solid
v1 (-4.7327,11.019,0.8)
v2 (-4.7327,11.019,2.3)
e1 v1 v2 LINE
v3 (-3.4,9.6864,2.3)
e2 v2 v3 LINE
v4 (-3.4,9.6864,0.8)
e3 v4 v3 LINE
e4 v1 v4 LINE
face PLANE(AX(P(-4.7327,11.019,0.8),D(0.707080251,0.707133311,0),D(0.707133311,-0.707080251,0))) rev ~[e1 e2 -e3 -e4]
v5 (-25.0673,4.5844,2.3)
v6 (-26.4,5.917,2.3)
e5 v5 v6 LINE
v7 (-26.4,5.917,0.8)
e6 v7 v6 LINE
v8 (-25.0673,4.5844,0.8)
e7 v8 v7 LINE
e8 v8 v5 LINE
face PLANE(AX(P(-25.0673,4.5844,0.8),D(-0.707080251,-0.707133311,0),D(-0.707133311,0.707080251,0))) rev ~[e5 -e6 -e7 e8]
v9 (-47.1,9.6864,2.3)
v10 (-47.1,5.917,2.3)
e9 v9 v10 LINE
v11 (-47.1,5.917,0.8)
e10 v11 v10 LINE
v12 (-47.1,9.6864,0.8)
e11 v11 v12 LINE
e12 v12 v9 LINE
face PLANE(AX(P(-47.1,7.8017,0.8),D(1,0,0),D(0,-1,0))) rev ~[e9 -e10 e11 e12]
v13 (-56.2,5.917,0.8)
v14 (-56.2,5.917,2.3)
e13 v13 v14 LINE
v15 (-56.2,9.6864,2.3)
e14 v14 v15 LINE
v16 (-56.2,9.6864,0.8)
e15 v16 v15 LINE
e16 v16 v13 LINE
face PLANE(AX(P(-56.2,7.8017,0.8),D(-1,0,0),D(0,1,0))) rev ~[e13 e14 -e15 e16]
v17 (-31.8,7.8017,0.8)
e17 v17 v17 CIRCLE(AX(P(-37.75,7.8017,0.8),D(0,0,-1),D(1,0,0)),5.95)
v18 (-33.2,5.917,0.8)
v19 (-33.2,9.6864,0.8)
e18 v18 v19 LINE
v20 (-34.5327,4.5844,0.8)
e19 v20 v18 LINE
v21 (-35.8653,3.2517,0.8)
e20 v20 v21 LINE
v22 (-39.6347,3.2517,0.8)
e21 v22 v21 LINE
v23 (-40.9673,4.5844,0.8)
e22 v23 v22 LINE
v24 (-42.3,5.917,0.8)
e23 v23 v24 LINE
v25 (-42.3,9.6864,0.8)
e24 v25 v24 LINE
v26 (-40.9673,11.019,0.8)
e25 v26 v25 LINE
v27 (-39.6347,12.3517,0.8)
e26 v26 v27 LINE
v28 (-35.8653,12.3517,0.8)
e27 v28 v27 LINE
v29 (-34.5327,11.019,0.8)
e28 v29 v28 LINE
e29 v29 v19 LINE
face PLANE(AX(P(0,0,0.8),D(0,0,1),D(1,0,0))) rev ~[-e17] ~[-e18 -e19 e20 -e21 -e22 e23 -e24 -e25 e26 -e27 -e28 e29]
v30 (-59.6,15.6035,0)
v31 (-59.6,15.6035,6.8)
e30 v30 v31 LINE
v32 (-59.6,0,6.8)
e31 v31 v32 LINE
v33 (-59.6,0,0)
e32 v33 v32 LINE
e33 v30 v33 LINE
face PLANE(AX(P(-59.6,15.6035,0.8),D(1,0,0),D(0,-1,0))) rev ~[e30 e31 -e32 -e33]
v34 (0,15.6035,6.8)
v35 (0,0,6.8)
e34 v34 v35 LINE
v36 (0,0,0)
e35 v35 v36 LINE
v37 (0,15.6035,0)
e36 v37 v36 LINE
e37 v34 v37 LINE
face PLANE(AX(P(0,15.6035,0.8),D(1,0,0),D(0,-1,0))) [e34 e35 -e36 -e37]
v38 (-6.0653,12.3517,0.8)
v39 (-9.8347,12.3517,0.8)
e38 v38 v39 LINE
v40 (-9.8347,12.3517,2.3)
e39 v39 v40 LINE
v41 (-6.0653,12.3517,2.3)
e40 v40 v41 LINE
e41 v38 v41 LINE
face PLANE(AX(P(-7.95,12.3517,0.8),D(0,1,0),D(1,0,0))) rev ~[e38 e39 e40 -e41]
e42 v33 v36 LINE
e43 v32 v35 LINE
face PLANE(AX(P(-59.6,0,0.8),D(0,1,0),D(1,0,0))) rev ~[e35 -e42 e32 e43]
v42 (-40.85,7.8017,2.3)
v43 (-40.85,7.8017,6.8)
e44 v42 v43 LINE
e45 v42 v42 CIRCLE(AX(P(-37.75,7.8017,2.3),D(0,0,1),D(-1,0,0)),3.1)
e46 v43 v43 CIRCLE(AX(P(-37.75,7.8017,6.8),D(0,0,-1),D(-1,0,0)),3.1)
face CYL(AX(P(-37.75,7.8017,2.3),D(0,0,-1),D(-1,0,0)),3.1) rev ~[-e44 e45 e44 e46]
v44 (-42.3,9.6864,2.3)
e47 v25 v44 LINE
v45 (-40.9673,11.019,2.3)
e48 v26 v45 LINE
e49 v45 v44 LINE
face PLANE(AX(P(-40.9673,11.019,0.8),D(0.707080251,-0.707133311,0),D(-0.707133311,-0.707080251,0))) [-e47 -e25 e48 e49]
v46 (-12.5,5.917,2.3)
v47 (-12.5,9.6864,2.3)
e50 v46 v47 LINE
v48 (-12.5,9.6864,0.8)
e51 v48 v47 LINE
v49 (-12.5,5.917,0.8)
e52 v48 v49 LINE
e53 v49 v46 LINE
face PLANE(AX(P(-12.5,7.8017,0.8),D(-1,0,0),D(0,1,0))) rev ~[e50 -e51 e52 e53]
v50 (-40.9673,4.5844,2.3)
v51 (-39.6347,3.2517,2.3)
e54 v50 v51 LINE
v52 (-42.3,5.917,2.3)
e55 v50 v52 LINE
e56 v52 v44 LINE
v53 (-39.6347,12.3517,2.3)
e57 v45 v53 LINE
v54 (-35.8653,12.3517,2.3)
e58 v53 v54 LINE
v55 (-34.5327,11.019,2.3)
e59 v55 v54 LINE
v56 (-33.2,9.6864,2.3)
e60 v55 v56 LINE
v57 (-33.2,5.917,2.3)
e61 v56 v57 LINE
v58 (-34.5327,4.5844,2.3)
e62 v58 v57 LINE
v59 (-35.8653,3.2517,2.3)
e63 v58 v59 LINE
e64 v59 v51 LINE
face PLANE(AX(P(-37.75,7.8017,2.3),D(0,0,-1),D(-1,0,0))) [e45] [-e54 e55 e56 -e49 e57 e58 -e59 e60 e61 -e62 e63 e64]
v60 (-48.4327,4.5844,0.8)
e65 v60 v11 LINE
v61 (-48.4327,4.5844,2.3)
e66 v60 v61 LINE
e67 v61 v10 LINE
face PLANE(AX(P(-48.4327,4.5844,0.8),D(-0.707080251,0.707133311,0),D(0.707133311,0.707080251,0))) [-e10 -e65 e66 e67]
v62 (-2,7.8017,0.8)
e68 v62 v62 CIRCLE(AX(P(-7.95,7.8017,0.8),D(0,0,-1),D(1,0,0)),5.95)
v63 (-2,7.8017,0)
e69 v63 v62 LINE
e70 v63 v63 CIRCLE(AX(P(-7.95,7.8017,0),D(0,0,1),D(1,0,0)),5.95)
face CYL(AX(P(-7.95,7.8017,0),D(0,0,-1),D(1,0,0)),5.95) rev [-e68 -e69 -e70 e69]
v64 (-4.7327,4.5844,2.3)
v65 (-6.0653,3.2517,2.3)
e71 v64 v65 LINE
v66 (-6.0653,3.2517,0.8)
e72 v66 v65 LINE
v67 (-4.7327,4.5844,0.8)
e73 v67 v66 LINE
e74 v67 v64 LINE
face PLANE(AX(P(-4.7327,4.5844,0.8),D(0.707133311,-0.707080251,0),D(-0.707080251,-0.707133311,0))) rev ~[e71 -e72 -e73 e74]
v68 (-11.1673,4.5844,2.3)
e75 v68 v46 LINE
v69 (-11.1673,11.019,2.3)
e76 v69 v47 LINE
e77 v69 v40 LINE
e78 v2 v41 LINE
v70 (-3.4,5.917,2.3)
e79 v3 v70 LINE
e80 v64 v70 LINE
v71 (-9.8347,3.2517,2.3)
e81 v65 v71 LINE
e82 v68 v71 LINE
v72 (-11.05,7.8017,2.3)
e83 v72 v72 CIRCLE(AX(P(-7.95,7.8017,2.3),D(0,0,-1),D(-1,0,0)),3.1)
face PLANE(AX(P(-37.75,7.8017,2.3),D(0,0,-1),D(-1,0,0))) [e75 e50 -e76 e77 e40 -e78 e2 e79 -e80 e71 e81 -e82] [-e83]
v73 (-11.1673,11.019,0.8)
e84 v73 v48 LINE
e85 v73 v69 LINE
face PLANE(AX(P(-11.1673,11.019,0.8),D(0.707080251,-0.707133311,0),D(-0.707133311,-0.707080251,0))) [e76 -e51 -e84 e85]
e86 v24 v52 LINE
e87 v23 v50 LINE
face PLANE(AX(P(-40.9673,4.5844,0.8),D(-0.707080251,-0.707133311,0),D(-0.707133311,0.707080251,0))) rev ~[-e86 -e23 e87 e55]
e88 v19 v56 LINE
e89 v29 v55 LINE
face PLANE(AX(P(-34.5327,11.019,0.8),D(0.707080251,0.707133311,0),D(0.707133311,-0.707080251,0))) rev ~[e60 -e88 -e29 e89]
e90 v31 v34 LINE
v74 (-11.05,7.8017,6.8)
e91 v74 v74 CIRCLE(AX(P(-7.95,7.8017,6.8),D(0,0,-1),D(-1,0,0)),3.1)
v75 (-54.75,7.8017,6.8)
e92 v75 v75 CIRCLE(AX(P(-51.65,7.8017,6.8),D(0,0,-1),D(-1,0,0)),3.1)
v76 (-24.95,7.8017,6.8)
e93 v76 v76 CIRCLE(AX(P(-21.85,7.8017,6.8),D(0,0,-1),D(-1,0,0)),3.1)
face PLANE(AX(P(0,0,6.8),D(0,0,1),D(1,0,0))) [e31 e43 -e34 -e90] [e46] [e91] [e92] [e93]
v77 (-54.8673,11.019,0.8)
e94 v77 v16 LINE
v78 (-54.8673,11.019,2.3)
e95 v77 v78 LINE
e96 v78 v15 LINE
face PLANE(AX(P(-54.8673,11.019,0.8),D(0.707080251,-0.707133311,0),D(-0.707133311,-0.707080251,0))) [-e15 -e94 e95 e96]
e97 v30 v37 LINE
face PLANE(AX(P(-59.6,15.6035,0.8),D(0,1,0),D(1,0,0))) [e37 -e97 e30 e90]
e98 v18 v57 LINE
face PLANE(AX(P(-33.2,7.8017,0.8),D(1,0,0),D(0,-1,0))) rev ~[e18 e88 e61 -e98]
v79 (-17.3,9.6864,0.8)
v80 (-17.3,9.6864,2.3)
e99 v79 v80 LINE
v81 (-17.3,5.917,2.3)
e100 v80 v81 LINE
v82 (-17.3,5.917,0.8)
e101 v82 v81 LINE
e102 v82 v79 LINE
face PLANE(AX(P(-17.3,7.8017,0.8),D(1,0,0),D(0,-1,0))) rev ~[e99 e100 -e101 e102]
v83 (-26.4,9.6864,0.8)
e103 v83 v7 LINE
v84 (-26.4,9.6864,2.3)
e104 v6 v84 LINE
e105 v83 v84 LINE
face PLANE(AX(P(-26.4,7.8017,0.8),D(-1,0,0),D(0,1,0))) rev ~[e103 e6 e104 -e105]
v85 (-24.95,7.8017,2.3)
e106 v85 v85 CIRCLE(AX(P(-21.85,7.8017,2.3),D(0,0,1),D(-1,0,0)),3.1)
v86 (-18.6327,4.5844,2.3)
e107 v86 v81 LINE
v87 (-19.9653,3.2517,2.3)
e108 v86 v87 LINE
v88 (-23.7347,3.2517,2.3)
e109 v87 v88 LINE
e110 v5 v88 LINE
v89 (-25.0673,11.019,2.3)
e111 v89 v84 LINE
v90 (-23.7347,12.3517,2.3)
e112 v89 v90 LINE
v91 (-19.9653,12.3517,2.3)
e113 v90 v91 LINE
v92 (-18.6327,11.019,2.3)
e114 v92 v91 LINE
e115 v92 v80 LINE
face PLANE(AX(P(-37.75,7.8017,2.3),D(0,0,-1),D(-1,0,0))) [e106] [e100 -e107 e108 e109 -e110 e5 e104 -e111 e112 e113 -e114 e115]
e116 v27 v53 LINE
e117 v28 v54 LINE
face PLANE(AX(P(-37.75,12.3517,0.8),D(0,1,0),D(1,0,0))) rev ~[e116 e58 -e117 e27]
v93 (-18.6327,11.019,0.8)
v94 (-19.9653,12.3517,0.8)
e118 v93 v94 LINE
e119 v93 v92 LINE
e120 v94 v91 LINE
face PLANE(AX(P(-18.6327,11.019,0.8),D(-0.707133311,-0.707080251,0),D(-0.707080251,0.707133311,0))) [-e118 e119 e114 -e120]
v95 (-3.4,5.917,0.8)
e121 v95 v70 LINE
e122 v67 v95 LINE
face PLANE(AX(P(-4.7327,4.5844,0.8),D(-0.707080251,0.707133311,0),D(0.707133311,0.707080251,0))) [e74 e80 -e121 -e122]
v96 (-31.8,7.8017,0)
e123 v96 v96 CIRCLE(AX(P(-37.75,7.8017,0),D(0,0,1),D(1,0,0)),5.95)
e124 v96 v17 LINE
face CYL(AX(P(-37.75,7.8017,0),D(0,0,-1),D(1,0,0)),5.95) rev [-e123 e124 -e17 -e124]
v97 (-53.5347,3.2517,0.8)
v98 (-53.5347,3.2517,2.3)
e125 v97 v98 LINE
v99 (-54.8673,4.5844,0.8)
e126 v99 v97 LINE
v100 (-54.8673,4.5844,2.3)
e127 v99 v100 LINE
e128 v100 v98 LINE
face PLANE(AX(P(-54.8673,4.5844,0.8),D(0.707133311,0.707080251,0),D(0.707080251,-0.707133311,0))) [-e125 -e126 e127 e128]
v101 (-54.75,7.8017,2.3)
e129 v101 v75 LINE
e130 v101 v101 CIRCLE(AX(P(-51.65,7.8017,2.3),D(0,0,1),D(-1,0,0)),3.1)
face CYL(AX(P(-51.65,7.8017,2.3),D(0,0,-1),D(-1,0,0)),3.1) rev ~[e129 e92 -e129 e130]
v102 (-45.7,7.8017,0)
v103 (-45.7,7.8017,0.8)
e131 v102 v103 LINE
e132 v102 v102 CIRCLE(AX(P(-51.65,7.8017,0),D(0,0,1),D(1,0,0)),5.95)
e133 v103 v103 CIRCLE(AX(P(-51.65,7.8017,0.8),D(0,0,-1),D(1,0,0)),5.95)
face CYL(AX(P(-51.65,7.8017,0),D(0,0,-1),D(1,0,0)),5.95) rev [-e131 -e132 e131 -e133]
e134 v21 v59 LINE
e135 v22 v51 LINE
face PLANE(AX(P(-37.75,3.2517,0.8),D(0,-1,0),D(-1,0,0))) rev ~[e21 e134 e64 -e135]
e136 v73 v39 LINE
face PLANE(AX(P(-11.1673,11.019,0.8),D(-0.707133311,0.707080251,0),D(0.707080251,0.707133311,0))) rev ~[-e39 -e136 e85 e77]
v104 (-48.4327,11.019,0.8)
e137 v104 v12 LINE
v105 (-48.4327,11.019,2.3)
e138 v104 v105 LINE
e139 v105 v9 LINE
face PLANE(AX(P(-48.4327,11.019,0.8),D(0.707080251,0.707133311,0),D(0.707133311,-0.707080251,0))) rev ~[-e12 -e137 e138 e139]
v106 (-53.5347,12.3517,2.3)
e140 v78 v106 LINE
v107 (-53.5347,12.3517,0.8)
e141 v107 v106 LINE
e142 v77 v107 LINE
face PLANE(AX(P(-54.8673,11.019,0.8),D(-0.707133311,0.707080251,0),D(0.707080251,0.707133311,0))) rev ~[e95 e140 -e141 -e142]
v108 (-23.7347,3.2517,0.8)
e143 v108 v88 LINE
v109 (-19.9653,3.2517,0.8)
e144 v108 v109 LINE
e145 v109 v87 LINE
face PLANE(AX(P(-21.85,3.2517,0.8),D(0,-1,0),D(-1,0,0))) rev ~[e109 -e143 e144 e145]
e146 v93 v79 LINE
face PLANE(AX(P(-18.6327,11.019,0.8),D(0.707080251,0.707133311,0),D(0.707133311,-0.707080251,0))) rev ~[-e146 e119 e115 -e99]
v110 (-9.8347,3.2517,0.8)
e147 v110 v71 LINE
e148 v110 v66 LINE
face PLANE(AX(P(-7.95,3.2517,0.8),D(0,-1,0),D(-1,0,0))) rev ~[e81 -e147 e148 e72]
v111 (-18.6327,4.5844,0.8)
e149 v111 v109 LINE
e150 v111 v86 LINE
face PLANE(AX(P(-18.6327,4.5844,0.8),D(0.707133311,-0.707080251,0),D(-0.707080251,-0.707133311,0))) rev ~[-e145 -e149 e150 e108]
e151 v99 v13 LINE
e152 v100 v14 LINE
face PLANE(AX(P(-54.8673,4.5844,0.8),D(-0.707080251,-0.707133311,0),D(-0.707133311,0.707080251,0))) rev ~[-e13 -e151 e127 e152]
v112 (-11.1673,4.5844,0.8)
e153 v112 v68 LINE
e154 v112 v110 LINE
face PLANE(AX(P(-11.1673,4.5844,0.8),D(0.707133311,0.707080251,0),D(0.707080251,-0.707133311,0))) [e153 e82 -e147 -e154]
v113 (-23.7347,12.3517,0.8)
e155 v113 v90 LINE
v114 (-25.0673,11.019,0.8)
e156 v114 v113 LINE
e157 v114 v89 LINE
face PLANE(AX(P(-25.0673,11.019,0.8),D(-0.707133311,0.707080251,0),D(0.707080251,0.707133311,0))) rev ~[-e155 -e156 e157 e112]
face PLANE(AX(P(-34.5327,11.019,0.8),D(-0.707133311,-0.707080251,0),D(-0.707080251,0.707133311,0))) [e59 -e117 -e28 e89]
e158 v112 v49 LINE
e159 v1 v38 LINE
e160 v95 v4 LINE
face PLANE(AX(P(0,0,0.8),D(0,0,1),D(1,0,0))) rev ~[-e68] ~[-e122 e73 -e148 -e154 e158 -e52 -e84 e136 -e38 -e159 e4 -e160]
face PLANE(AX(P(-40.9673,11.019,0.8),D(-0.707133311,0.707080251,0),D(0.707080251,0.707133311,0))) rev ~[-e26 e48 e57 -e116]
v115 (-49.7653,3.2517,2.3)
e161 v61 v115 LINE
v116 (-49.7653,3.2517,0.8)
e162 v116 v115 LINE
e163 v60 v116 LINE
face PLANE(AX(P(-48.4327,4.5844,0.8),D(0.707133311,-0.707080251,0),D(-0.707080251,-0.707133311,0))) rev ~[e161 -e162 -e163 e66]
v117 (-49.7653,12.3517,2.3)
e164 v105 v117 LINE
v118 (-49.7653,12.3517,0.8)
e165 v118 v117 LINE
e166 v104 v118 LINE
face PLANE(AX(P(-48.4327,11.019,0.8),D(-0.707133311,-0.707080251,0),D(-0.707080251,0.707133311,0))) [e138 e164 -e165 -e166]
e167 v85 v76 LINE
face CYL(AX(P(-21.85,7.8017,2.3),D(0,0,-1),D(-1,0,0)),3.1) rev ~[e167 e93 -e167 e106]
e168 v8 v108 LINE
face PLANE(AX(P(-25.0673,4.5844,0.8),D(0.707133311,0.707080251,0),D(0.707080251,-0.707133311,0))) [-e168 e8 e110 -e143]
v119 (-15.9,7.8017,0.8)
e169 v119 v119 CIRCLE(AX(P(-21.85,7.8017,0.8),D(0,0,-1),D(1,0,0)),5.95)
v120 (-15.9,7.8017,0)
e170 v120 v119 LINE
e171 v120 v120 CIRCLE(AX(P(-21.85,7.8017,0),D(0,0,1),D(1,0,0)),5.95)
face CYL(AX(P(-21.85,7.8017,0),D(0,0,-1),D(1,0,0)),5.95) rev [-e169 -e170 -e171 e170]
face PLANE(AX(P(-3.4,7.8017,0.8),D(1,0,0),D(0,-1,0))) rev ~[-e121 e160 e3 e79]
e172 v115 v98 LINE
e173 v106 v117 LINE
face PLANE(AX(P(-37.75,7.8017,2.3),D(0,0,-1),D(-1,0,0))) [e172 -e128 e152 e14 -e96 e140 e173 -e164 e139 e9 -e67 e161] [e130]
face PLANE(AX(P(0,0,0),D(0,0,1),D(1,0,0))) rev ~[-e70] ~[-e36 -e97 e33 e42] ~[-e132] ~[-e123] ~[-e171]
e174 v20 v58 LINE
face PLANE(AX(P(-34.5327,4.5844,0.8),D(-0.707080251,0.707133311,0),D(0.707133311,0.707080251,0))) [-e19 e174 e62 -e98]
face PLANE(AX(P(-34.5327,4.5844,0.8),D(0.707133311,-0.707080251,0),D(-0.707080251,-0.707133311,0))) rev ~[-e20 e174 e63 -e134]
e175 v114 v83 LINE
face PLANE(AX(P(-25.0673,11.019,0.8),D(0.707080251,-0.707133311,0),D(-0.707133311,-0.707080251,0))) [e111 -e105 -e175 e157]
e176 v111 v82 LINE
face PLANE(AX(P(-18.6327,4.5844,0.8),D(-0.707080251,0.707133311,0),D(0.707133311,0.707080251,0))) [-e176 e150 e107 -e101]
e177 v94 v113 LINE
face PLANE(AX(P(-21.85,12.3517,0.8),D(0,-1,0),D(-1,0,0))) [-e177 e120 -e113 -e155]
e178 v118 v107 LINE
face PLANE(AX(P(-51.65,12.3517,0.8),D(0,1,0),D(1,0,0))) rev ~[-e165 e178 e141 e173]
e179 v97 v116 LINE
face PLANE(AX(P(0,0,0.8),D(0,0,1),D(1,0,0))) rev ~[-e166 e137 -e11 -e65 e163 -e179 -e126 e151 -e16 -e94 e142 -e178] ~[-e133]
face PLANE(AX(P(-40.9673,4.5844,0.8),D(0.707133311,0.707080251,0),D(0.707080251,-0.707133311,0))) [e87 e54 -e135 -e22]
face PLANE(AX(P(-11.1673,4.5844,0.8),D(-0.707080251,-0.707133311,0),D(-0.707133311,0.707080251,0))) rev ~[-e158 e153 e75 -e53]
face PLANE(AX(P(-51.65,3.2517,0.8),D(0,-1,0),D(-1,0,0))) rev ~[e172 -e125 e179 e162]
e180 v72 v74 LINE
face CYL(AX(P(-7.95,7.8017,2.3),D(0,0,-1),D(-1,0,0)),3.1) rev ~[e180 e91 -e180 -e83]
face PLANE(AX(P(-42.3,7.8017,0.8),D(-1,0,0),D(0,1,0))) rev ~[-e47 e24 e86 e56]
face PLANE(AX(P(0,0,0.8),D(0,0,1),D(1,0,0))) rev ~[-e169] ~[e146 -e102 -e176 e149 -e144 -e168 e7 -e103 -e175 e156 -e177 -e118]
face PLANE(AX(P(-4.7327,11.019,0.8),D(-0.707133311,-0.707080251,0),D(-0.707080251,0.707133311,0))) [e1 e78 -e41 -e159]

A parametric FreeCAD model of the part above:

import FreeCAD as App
import Part
import Sketcher
from FreeCAD import Vector
Q = App.Units.Quantity

doc = App.newDocument("Part")
body = doc.addObject("PartDesign::Body", "Body")

sketch1 = body.newObject("Sketcher::SketchObject", "Sketch")
sketch1.AttachmentSupport = (doc.getObject("XY_Plane"), [""])
sketch1.MapMode = "FlatFace"
sketch1.addGeometry(Part.LineSegment(Vector(0, 0, 0), Vector(0, 15.6035, 0)), False)
sketch1.addGeometry(Part.LineSegment(Vector(0, 15.6035, 0), Vector(-59.6, 15.6035, 0)), False)
sketch1.addGeometry(Part.LineSegment(Vector(-59.6, 15.6035, 0), Vector(-59.6, 0, 0)), False)
sketch1.addGeometry(Part.LineSegment(Vector(-59.6, 0, 0), Vector(0, 0, 0)), False)
sketch1.addGeometry(Part.Circle(Vector(-7.95, 7.8017, 0), Vector(0, 0, 1), 5.95), False)
sketch1.addGeometry(Part.Circle(Vector(-21.85, 7.8017, 0), Vector(0, 0, 1), 5.95), False)
sketch1.addGeometry(Part.Circle(Vector(-37.75, 7.8017, 0), Vector(0, 0, 1), 5.95), False)
sketch1.addGeometry(Part.Circle(Vector(-51.65, 7.8017, 0), Vector(0, 0, 1), 5.95), False)
sketch1.addConstraint(Sketcher.Constraint("Coincident", 0, 2, 1, 1))
sketch1.addConstraint(Sketcher.Constraint("Coincident", 1, 2, 2, 1))
sketch1.addConstraint(Sketcher.Constraint("Coincident", 2, 2, 3, 1))
sketch1.addConstraint(Sketcher.Constraint("Coincident", 3, 2, 0, 1))
sketch1.addConstraint(Sketcher.Constraint("Vertical", 0))
sketch1.addConstraint(Sketcher.Constraint("Horizontal", 1))
sketch1.addConstraint(Sketcher.Constraint("Vertical", 2))
sketch1.addConstraint(Sketcher.Constraint("Horizontal", 3))
sketch1.addConstraint(Sketcher.Constraint("Coincident", 3, 2, -1, 1))
sketch1.addConstraint(Sketcher.Constraint("Equal", 4, 5))
sketch1.addConstraint(Sketcher.Constraint("Equal", 5, 6))
sketch1.addConstraint(Sketcher.Constraint("Equal", 6, 7))
sketch1.addConstraint(Sketcher.Constraint("Horizontal", 4, 3, 5, 3))
sketch1.addConstraint(Sketcher.Constraint("Horizontal", 5, 3, 6, 3))
sketch1.addConstraint(Sketcher.Constraint("Horizontal", 6, 3, 7, 3))
sketch1.addConstraint(Sketcher.Constraint("Diameter", 4, Q("11.9 mm")))
sketch1.addConstraint(Sketcher.Constraint("DistanceX", 5, 3, 4, 3, Q("13.9 mm")))
sketch1.addConstraint(Sketcher.Constraint("DistanceX", 7, 3, 6, 3, Q("13.9 mm")))
sketch1.addConstraint(Sketcher.Constraint("DistanceX", 4, 3, -1, 1, Q("7.95 mm")))
sketch1.addConstraint(Sketcher.Constraint("DistanceX", 1, 2, 7, 3, Q("7.95 mm")))
sketch1.addConstraint(Sketcher.Constraint("DistanceX", 1, 2, 1, 1, Q("59.6 mm")))
sketch1.addConstraint(Sketcher.Constraint("DistanceY", 0, 1, 0, 2, Q("15.6035 mm")))
sketch1.addConstraint(Sketcher.Constraint("DistanceY", -1, 1, 4, 3, Q("7.8017 mm")))
pad1 = body.newObject("PartDesign::Pad", "Pad")
pad1.Profile = sketch1
pad1.Length = 0.8

sketch2 = body.newObject("Sketcher::SketchObject", "Sketch001")
sketch2.AttachmentSupport = (doc.getObject("XY_Plane"), [""])
sketch2.MapMode = "FlatFace"
sketch2.AttachmentOffset = App.Placement(Vector(0, 0, 0.8), App.Rotation())
sketch2.addGeometry(Part.LineSegment(Vector(0, 15.6035, 0), Vector(-59.6, 15.6035, 0)), False)
sketch2.addGeometry(Part.LineSegment(Vector(-59.6, 15.6035, 0), Vector(-59.6, 0, 0)), False)
sketch2.addGeometry(Part.LineSegment(Vector(-59.6, 0, 0), Vector(0, 0, 0)), False)
sketch2.addGeometry(Part.LineSegment(Vector(0, 0, 0), Vector(0, 15.6035, 0)), False)
sketch2.addConstraint(Sketcher.Constraint("Coincident", 0, 2, 1, 1))
sketch2.addConstraint(Sketcher.Constraint("Coincident", 1, 2, 2, 1))
sketch2.addConstraint(Sketcher.Constraint("Coincident", 2, 2, 3, 1))
sketch2.addConstraint(Sketcher.Constraint("Coincident", 3, 2, 0, 1))
sketch2.addConstraint(Sketcher.Constraint("Horizontal", 0))
sketch2.addConstraint(Sketcher.Constraint("Vertical", 1))
sketch2.addConstraint(Sketcher.Constraint("Horizontal", 2))
sketch2.addConstraint(Sketcher.Constraint("Vertical", 3))
sketch2.addConstraint(Sketcher.Constraint("Coincident", 2, 2, -1, 1))
sketch2.addConstraint(Sketcher.Constraint("DistanceX", 0, 2, 0, 1, Q("59.6 mm")))
sketch2.addConstraint(Sketcher.Constraint("DistanceY", 1, 2, 1, 1, Q("15.6035 mm")))
pad2 = body.newObject("PartDesign::Pad", "Pad001")
pad2.Profile = sketch2
pad2.Length = 6

sketch3 = body.newObject("Sketcher::SketchObject", "Sketch002")
sketch3.AttachmentSupport = (doc.getObject("XY_Plane"), [""])
sketch3.MapMode = "FlatFace"
sketch3.AttachmentOffset = App.Placement(Vector(0, 0, 0.8), App.Rotation())
sketch3.addGeometry(Part.LineSegment(Vector(-39.6347, 3.2517, 0), Vector(-40.9673, 4.5844, 0)), False)
sketch3.addGeometry(Part.LineSegment(Vector(-40.9673, 4.5844, 0), Vector(-42.3, 5.917, 0)), False)
sketch3.addGeometry(Part.LineSegment(Vector(-42.3, 5.917, 0), Vector(-42.3, 9.6864, 0)), False)
sketch3.addGeometry(Part.LineSegment(Vector(-42.3, 9.6864, 0), Vector(-40.9673, 11.019, 0)), False)
sketch3.addGeometry(Part.LineSegment(Vector(-40.9673, 11.019, 0), Vector(-39.6347, 12.3517, 0)), False)
sketch3.addGeometry(Part.LineSegment(Vector(-39.6347, 12.3517, 0), Vector(-35.8653, 12.3517, 0)), False)
sketch3.addGeometry(Part.LineSegment(Vector(-35.8653, 12.3517, 0), Vector(-34.5327, 11.019, 0)), False)
sketch3.addGeometry(Part.LineSegment(Vector(-34.5327, 11.019, 0), Vector(-33.2, 9.6864, 0)), False)
sketch3.addGeometry(Part.LineSegment(Vector(-33.2, 9.6864, 0), Vector(-33.2, 5.917, 0)), False)
sketch3.addGeometry(Part.LineSegment(Vector(-33.2, 5.917, 0), Vector(-34.5327, 4.5844, 0)), False)
sketch3.addGeometry(Part.LineSegment(Vector(-34.5327, 4.5844, 0), Vector(-35.8653, 3.2517, 0)), False)
sketch3.addGeometry(Part.LineSegment(Vector(-35.8653, 3.2517, 0), Vector(-39.6347, 3.2517, 0)), False)
sketch3.addGeometry(Part.LineSegment(Vector(-49.7653, 12.3517, 0), Vector(-48.4327, 11.019, 0)), False)
sketch3.addGeometry(Part.LineSegment(Vector(-48.4327, 11.019, 0), Vector(-47.1, 9.6864, 0)), False)
sketch3.addGeometry(Part.LineSegment(Vector(-47.1, 9.6864, 0), Vector(-47.1, 5.917, 0)), False)
sketch3.addGeometry(Part.LineSegment(Vector(-47.1, 5.917, 0), Vector(-48.4327, 4.5844, 0)), False)
sketch3.addGeometry(Part.LineSegment(Vector(-48.4327, 4.5844, 0), Vector(-49.7653, 3.2517, 0)), False)
sketch3.addGeometry(Part.LineSegment(Vector(-49.7653, 3.2517, 0), Vector(-53.5347, 3.2517, 0)), False)
sketch3.addGeometry(Part.LineSegment(Vector(-53.5347, 3.2517, 0), Vector(-54.8673, 4.5844, 0)), False)
sketch3.addGeometry(Part.LineSegment(Vector(-54.8673, 4.5844, 0), Vector(-56.2, 5.917, 0)), False)
sketch3.addGeometry(Part.LineSegment(Vector(-56.2, 5.917, 0), Vector(-56.2, 9.6864, 0)), False)
sketch3.addGeometry(Part.LineSegment(Vector(-56.2, 9.6864, 0), Vector(-54.8673, 11.019, 0)), False)
sketch3.addGeometry(Part.LineSegment(Vector(-54.8673, 11.019, 0), Vector(-53.5347, 12.3517, 0)), False)
sketch3.addGeometry(Part.LineSegment(Vector(-53.5347, 12.3517, 0), Vector(-49.7653, 12.3517, 0)), False)
sketch3.addGeometry(Part.LineSegment(Vector(-23.7347, 12.3517, 0), Vector(-19.9653, 12.3517, 0)), False)
sketch3.addGeometry(Part.LineSegment(Vector(-19.9653, 12.3517, 0), Vector(-18.6327, 11.019, 0)), False)
sketch3.addGeometry(Part.LineSegment(Vector(-18.6327, 11.019, 0), Vector(-17.3, 9.6864, 0)), False)
sketch3.addGeometry(Part.LineSegment(Vector(-17.3, 9.6864, 0), Vector(-17.3, 5.917, 0)), False)
sketch3.addGeometry(Part.LineSegment(Vector(-17.3, 5.917, 0), Vector(-18.6327, 4.5844, 0)), False)
sketch3.addGeometry(Part.LineSegment(Vector(-18.6327, 4.5844, 0), Vector(-19.9653, 3.2517, 0)), False)
sketch3.addGeometry(Part.LineSegment(Vector(-19.9653, 3.2517, 0), Vector(-23.7347, 3.2517, 0)), False)
sketch3.addGeometry(Part.LineSegment(Vector(-23.7347, 3.2517, 0), Vector(-25.0673, 4.5844, 0)), False)
sketch3.addGeometry(Part.LineSegment(Vector(-25.0673, 4.5844, 0), Vector(-26.4, 5.917, 0)), False)
sketch3.addGeometry(Part.LineSegment(Vector(-26.4, 5.917, 0), Vector(-26.4, 9.6864, 0)), False)
sketch3.addGeometry(Part.LineSegment(Vector(-26.4, 9.6864, 0), Vector(-25.0673, 11.019, 0)), False)
sketch3.addGeometry(Part.LineSegment(Vector(-25.0673, 11.019, 0), Vector(-23.7347, 12.3517, 0)), False)
sketch3.addGeometry(Part.LineSegment(Vector(-6.0653, 12.3517, 0), Vector(-4.7327, 11.019, 0)), False)
sketch3.addGeometry(Part.LineSegment(Vector(-4.7327, 11.019, 0), Vector(-3.4, 9.6864, 0)), False)
sketch3.addGeometry(Part.LineSegment(Vector(-3.4, 9.6864, 0), Vector(-3.4, 5.917, 0)), False)
sketch3.addGeometry(Part.LineSegment(Vector(-3.4, 5.917, 0), Vector(-4.7327, 4.5844, 0)), False)
sketch3.addGeometry(Part.LineSegment(Vector(-4.7327, 4.5844, 0), Vector(-6.0653, 3.2517, 0)), False)
sketch3.addGeometry(Part.LineSegment(Vector(-6.0653, 3.2517, 0), Vector(-9.8347, 3.2517, 0)), False)
sketch3.addGeometry(Part.LineSegment(Vector(-9.8347, 3.2517, 0), Vector(-11.1673, 4.5844, 0)), False)
sketch3.addGeometry(Part.LineSegment(Vector(-11.1673, 4.5844, 0), Vector(-12.5, 5.917, 0)), False)
sketch3.addGeometry(Part.LineSegment(Vector(-12.5, 5.917, 0), Vector(-12.5, 9.6864, 0)), False)
sketch3.addGeometry(Part.LineSegment(Vector(-12.5, 9.6864, 0), Vector(-11.1673, 11.019, 0)), False)
sketch3.addGeometry(Part.LineSegment(Vector(-11.1673, 11.019, 0), Vector(-9.8347, 12.3517, 0)), False)
sketch3.addGeometry(Part.LineSegment(Vector(-9.8347, 12.3517, 0), Vector(-6.0653, 12.3517, 0)), False)
sketch3.addConstraint(Sketcher.Constraint("Coincident", 0, 2, 1, 1))
sketch3.addConstraint(Sketcher.Constraint("Coincident", 1, 2, 2, 1))
sketch3.addConstraint(Sketcher.Constraint("Coincident", 2, 2, 3, 1))
sketch3.addConstraint(Sketcher.Constraint("Coincident", 3, 2, 4, 1))
sketch3.addConstraint(Sketcher.Constraint("Coincident", 4, 2, 5, 1))
sketch3.addConstraint(Sketcher.Constraint("Coincident", 5, 2, 6, 1))
sketch3.addConstraint(Sketcher.Constraint("Coincident", 6, 2, 7, 1))
sketch3.addConstraint(Sketcher.Constraint("Coincident", 7, 2, 8, 1))
sketch3.addConstraint(Sketcher.Constraint("Coincident", 8, 2, 9, 1))
sketch3.addConstraint(Sketcher.Constraint("Coincident", 9, 2, 10, 1))
sketch3.addConstraint(Sketcher.Constraint("Coincident", 10, 2, 11, 1))
sketch3.addConstraint(Sketcher.Constraint("Coincident", 11, 2, 0, 1))
sketch3.addConstraint(Sketcher.Constraint("Coincident", 12, 2, 13, 1))
sketch3.addConstraint(Sketcher.Constraint("Coincident", 13, 2, 14, 1))
sketch3.addConstraint(Sketcher.Constraint("Coincident", 14, 2, 15, 1))
sketch3.addConstraint(Sketcher.Constraint("Coincident", 15, 2, 16, 1))
sketch3.addConstraint(Sketcher.Constraint("Coincident", 16, 2, 17, 1))
sketch3.addConstraint(Sketcher.Constraint("Coincident", 17, 2, 18, 1))
sketch3.addConstraint(Sketcher.Constraint("Coincident", 18, 2, 19, 1))
sketch3.addConstraint(Sketcher.Constraint("Coincident", 19, 2, 20, 1))
sketch3.addConstraint(Sketcher.Constraint("Coincident", 20, 2, 21, 1))
sketch3.addConstraint(Sketcher.Constraint("Coincident", 21, 2, 22, 1))
sketch3.addConstraint(Sketcher.Constraint("Coincident", 22, 2, 23, 1))
sketch3.addConstraint(Sketcher.Constraint("Coincident", 23, 2, 12, 1))
sketch3.addConstraint(Sketcher.Constraint("Coincident", 24, 2, 25, 1))
sketch3.addConstraint(Sketcher.Constraint("Coincident", 25, 2, 26, 1))
sketch3.addConstraint(Sketcher.Constraint("Coincident", 26, 2, 27, 1))
sketch3.addConstraint(Sketcher.Constraint("Coincident", 27, 2, 28, 1))
sketch3.addConstraint(Sketcher.Constraint("Coincident", 28, 2, 29, 1))
sketch3.addConstraint(Sketcher.Constraint("Coincident", 29, 2, 30, 1))
sketch3.addConstraint(Sketcher.Constraint("Coincident", 30, 2, 31, 1))
sketch3.addConstraint(Sketcher.Constraint("Coincident", 31, 2, 32, 1))
sketch3.addConstraint(Sketcher.Constraint("Coincident", 32, 2, 33, 1))
sketch3.addConstraint(Sketcher.Constraint("Coincident", 33, 2, 34, 1))
sketch3.addConstraint(Sketcher.Constraint("Coincident", 34, 2, 35, 1))
sketch3.addConstraint(Sketcher.Constraint("Coincident", 35, 2, 24, 1))
sketch3.addConstraint(Sketcher.Constraint("Coincident", 36, 2, 37, 1))
sketch3.addConstraint(Sketcher.Constraint("Coincident", 37, 2, 38, 1))
sketch3.addConstraint(Sketcher.Constraint("Coincident", 38, 2, 39, 1))
sketch3.addConstraint(Sketcher.Constraint("Coincident", 39, 2, 40, 1))
sketch3.addConstraint(Sketcher.Constraint("Coincident", 40, 2, 41, 1))
sketch3.addConstraint(Sketcher.Constraint("Coincident", 41, 2, 42, 1))
sketch3.addConstraint(Sketcher.Constraint("Coincident", 42, 2, 43, 1))
sketch3.addConstraint(Sketcher.Constraint("Coincident", 43, 2, 44, 1))
sketch3.addConstraint(Sketcher.Constraint("Coincident", 44, 2, 45, 1))
sketch3.addConstraint(Sketcher.Constraint("Coincident", 45, 2, 46, 1))
sketch3.addConstraint(Sketcher.Constraint("Coincident", 46, 2, 47, 1))
sketch3.addConstraint(Sketcher.Constraint("Coincident", 47, 2, 36, 1))
sketch3.addConstraint(Sketcher.Constraint("Vertical", 2))
sketch3.addConstraint(Sketcher.Constraint("Horizontal", 5))
sketch3.addConstraint(Sketcher.Constraint("Vertical", 8))
sketch3.addConstraint(Sketcher.Constraint("Horizontal", 11))
sketch3.addConstraint(Sketcher.Constraint("Vertical", 14))
sketch3.addConstraint(Sketcher.Constraint("Horizontal", 17))
sketch3.addConstraint(Sketcher.Constraint("Vertical", 20))
sketch3.addConstraint(Sketcher.Constraint("Horizontal", 23))
sketch3.addConstraint(Sketcher.Constraint("Horizontal", 24))
sketch3.addConstraint(Sketcher.Constraint("Vertical", 27))
sketch3.addConstraint(Sketcher.Constraint("Horizontal", 30))
sketch3.addConstraint(Sketcher.Constraint("Vertical", 33))
sketch3.addConstraint(Sketcher.Constraint("Vertical", 38))
sketch3.addConstraint(Sketcher.Constraint("Horizontal", 41))
sketch3.addConstraint(Sketcher.Constraint("Vertical", 44))
sketch3.addConstraint(Sketcher.Constraint("Horizontal", 47))
sketch3.addConstraint(Sketcher.Constraint("Parallel", 0, 1))
sketch3.addConstraint(Sketcher.Constraint("Perpendicular", 1, 3))
sketch3.addConstraint(Sketcher.Constraint("Parallel", 3, 4))
sketch3.addConstraint(Sketcher.Constraint("Perpendicular", 4, 6))
sketch3.addConstraint(Sketcher.Constraint("Parallel", 6, 7))
sketch3.addConstraint(Sketcher.Constraint("Perpendicular", 7, 9))
sketch3.addConstraint(Sketcher.Constraint("Parallel", 9, 10))
sketch3.addConstraint(Sketcher.Constraint("Perpendicular", 10, 12))
sketch3.addConstraint(Sketcher.Constraint("Parallel", 12, 13))
sketch3.addConstraint(Sketcher.Constraint("Perpendicular", 13, 15))
sketch3.addConstraint(Sketcher.Constraint("Parallel", 15, 16))
sketch3.addConstraint(Sketcher.Constraint("Perpendicular", 16, 18))
sketch3.addConstraint(Sketcher.Constraint("Parallel", 18, 19))
sketch3.addConstraint(Sketcher.Constraint("Perpendicular", 19, 21))
sketch3.addConstraint(Sketcher.Constraint("Parallel", 21, 22))
sketch3.addConstraint(Sketcher.Constraint("Perpendicular", 22, 25))
sketch3.addConstraint(Sketcher.Constraint("Parallel", 25, 26))
sketch3.addConstraint(Sketcher.Constraint("Perpendicular", 26, 28))
sketch3.addConstraint(Sketcher.Constraint("Parallel", 28, 29))
sketch3.addConstraint(Sketcher.Constraint("Perpendicular", 29, 31))
sketch3.addConstraint(Sketcher.Constraint("Parallel", 31, 32))
sketch3.addConstraint(Sketcher.Constraint("Perpendicular", 32, 34))
sketch3.addConstraint(Sketcher.Constraint("Parallel", 34, 35))
sketch3.addConstraint(Sketcher.Constraint("Perpendicular", 35, 36))
sketch3.addConstraint(Sketcher.Constraint("Parallel", 36, 37))
sketch3.addConstraint(Sketcher.Constraint("Perpendicular", 37, 39))
sketch3.addConstraint(Sketcher.Constraint("Parallel", 39, 40))
sketch3.addConstraint(Sketcher.Constraint("Perpendicular", 40, 42))
sketch3.addConstraint(Sketcher.Constraint("Parallel", 42, 43))
sketch3.addConstraint(Sketcher.Constraint("Perpendicular", 43, 45))
sketch3.addConstraint(Sketcher.Constraint("Parallel", 45, 46))
sketch3.addConstraint(Sketcher.Constraint("Horizontal", 3, 2, 6, 2))
sketch3.addConstraint(Sketcher.Constraint("Horizontal", 2, 2, 7, 2))
sketch3.addConstraint(Sketcher.Constraint("Horizontal", 1, 2, 8, 2))
sketch3.addConstraint(Sketcher.Constraint("Horizontal", 0, 2, 9, 2))
sketch3.addConstraint(Sketcher.Constraint("Horizontal", 6, 2, 12, 2))
sketch3.addConstraint(Sketcher.Constraint("Horizontal", 7, 2, 13, 2))
sketch3.addConstraint(Sketcher.Constraint("Horizontal", 8, 2, 14, 2))
sketch3.addConstraint(Sketcher.Constraint("Horizontal", 9, 2, 15, 2))
sketch3.addConstraint(Sketcher.Constraint("Horizontal", 11, 2, 16, 2))
sketch3.addConstraint(Sketcher.Constraint("Horizontal", 15, 2, 18, 2))
sketch3.addConstraint(Sketcher.Constraint("Horizontal", 14, 2, 19, 2))
sketch3.addConstraint(Sketcher.Constraint("Horizontal", 13, 2, 20, 2))
sketch3.addConstraint(Sketcher.Constraint("Horizontal", 12, 2, 21, 2))
sketch3.addConstraint(Sketcher.Constraint("Horizontal", 5, 2, 22, 2))
sketch3.addConstraint(Sketcher.Constraint("Horizontal", 23, 2, 24, 2))
sketch3.addConstraint(Sketcher.Constraint("Horizontal", 21, 2, 25, 2))
sketch3.addConstraint(Sketcher.Constraint("Horizontal", 20, 2, 26, 2))
sketch3.addConstraint(Sketcher.Constraint("Horizontal", 19, 2, 27, 2))
sketch3.addConstraint(Sketcher.Constraint("Horizontal", 18, 2, 28, 2))
sketch3.addConstraint(Sketcher.Constraint("Horizontal", 17, 2, 29, 2))
sketch3.addConstraint(Sketcher.Constraint("Horizontal", 28, 2, 31, 2))
sketch3.addConstraint(Sketcher.Constraint("Horizontal", 27, 2, 32, 2))
sketch3.addConstraint(Sketcher.Constraint("Horizontal", 26, 2, 33, 2))
sketch3.addConstraint(Sketcher.Constraint("Horizontal", 25, 2, 34, 2))
sketch3.addConstraint(Sketcher.Constraint("Horizontal", 34, 2, 36, 2))
sketch3.addConstraint(Sketcher.Constraint("Horizontal", 33, 2, 37, 2))
sketch3.addConstraint(Sketcher.Constraint("Horizontal", 32, 2, 38, 2))
sketch3.addConstraint(Sketcher.Constraint("Horizontal", 31, 2, 39, 2))
sketch3.addConstraint(Sketcher.Constraint("Horizontal", 30, 2, 40, 2))
sketch3.addConstraint(Sketcher.Constraint("Horizontal", 39, 2, 42, 2))
sketch3.addConstraint(Sketcher.Constraint("Horizontal", 38, 2, 43, 2))
sketch3.addConstraint(Sketcher.Constraint("Horizontal", 37, 2, 44, 2))
sketch3.addConstraint(Sketcher.Constraint("Horizontal", 36, 2, 45, 2))
sketch3.addConstraint(Sketcher.Constraint("Horizontal", 35, 2, 46, 2))
sketch3.addConstraint(Sketcher.Constraint("Vertical", 0, 2, 3, 2))
sketch3.addConstraint(Sketcher.Constraint("Vertical", 6, 2, 9, 2))
sketch3.addConstraint(Sketcher.Constraint("Vertical", 5, 2, 10, 2))
sketch3.addConstraint(Sketcher.Constraint("Equal", 11, 17))
sketch3.addConstraint(Sketcher.Constraint("Equal", 23, 24))
sketch3.addConstraint(Sketcher.Constraint("Equal", 30, 41))
sketch3.addConstraint(Sketcher.Constraint("Equal", 47, 2))
sketch3.addConstraint(Sketcher.Constraint("Equal", 0, 1))
sketch3.addConstraint(Sketcher.Constraint("DistanceX", 1, 2, -1, 1, Q("42.3 mm")))
sketch3.addConstraint(Sketcher.Constraint("DistanceX", 7, 2, -1, 1, Q("33.2 mm")))
sketch3.addConstraint(Sketcher.Constraint("DistanceX", 13, 2, -1, 1, Q("47.1 mm")))
sketch3.addConstraint(Sketcher.Constraint("DistanceX", 26, 2, -1, 1, Q("17.3 mm")))
sketch3.addConstraint(Sketcher.Constraint("DistanceX", 37, 2, -1, 1, Q("3.4 mm")))
sketch3.addConstraint(Sketcher.Constraint("DistanceX", 5, 1, 5, 2, Q("3.7694 mm")))
sketch3.addConstraint(Sketcher.Constraint("DistanceY", -1, 1, 1, 2, Q("5.917 mm")))
pocket1 = body.newObject("PartDesign::Pocket", "Pocket")
pocket1.Profile = sketch3
pocket1.Length = 1.5
pocket1.Reversed = True

sketch4 = body.newObject("Sketcher::SketchObject", "Sketch003")
sketch4.AttachmentSupport = (doc.getObject("XY_Plane"), [""])
sketch4.MapMode = "FlatFace"
sketch4.AttachmentOffset = App.Placement(Vector(0, 0, 2.3), App.Rotation())
sketch4.addGeometry(Part.Circle(Vector(-37.75, 7.8017, 0), Vector(0, 0, 1), 3.1), False)
sketch4.addGeometry(Part.Circle(Vector(-51.65, 7.8017, 0), Vector(0, 0, 1), 3.1), False)
sketch4.addGeometry(Part.Circle(Vector(-21.85, 7.8017, 0), Vector(0, 0, 1), 3.1), False)
sketch4.addGeometry(Part.Circle(Vector(-7.95, 7.8017, 0), Vector(0, 0, 1), 3.1), False)
sketch4.addConstraint(Sketcher.Constraint("Equal", 0, 1))
sketch4.addConstraint(Sketcher.Constraint("Equal", 1, 2))
sketch4.addConstraint(Sketcher.Constraint("Equal", 2, 3))
sketch4.addConstraint(Sketcher.Constraint("Horizontal", 0, 3, 1, 3))
sketch4.addConstraint(Sketcher.Constraint("Horizontal", 1, 3, 2, 3))
sketch4.addConstraint(Sketcher.Constraint("Horizontal", 2, 3, 3, 3))
sketch4.addConstraint(Sketcher.Constraint("Diameter", 0, Q("6.2 mm")))
sketch4.addConstraint(Sketcher.Constraint("DistanceX", 1, 3, 0, 3, Q("13.9 mm")))
sketch4.addConstraint(Sketcher.Constraint("DistanceX", 0, 3, 2, 3, Q("15.9 mm")))
sketch4.addConstraint(Sketcher.Constraint("DistanceX", 2, 3, 3, 3, Q("13.9 mm")))
sketch4.addConstraint(Sketcher.Constraint("DistanceX", 0, 3, -1, 1, Q("37.75 mm")))
sketch4.addConstraint(Sketcher.Constraint("DistanceY", -1, 1, 0, 3, Q("7.8017 mm")))
pocket2 = body.newObject("PartDesign::Pocket", "Pocket001")
pocket2.Profile = sketch4
pocket2.Type = "ThroughAll"
pocket2.Reversed = True

doc.recompute()
